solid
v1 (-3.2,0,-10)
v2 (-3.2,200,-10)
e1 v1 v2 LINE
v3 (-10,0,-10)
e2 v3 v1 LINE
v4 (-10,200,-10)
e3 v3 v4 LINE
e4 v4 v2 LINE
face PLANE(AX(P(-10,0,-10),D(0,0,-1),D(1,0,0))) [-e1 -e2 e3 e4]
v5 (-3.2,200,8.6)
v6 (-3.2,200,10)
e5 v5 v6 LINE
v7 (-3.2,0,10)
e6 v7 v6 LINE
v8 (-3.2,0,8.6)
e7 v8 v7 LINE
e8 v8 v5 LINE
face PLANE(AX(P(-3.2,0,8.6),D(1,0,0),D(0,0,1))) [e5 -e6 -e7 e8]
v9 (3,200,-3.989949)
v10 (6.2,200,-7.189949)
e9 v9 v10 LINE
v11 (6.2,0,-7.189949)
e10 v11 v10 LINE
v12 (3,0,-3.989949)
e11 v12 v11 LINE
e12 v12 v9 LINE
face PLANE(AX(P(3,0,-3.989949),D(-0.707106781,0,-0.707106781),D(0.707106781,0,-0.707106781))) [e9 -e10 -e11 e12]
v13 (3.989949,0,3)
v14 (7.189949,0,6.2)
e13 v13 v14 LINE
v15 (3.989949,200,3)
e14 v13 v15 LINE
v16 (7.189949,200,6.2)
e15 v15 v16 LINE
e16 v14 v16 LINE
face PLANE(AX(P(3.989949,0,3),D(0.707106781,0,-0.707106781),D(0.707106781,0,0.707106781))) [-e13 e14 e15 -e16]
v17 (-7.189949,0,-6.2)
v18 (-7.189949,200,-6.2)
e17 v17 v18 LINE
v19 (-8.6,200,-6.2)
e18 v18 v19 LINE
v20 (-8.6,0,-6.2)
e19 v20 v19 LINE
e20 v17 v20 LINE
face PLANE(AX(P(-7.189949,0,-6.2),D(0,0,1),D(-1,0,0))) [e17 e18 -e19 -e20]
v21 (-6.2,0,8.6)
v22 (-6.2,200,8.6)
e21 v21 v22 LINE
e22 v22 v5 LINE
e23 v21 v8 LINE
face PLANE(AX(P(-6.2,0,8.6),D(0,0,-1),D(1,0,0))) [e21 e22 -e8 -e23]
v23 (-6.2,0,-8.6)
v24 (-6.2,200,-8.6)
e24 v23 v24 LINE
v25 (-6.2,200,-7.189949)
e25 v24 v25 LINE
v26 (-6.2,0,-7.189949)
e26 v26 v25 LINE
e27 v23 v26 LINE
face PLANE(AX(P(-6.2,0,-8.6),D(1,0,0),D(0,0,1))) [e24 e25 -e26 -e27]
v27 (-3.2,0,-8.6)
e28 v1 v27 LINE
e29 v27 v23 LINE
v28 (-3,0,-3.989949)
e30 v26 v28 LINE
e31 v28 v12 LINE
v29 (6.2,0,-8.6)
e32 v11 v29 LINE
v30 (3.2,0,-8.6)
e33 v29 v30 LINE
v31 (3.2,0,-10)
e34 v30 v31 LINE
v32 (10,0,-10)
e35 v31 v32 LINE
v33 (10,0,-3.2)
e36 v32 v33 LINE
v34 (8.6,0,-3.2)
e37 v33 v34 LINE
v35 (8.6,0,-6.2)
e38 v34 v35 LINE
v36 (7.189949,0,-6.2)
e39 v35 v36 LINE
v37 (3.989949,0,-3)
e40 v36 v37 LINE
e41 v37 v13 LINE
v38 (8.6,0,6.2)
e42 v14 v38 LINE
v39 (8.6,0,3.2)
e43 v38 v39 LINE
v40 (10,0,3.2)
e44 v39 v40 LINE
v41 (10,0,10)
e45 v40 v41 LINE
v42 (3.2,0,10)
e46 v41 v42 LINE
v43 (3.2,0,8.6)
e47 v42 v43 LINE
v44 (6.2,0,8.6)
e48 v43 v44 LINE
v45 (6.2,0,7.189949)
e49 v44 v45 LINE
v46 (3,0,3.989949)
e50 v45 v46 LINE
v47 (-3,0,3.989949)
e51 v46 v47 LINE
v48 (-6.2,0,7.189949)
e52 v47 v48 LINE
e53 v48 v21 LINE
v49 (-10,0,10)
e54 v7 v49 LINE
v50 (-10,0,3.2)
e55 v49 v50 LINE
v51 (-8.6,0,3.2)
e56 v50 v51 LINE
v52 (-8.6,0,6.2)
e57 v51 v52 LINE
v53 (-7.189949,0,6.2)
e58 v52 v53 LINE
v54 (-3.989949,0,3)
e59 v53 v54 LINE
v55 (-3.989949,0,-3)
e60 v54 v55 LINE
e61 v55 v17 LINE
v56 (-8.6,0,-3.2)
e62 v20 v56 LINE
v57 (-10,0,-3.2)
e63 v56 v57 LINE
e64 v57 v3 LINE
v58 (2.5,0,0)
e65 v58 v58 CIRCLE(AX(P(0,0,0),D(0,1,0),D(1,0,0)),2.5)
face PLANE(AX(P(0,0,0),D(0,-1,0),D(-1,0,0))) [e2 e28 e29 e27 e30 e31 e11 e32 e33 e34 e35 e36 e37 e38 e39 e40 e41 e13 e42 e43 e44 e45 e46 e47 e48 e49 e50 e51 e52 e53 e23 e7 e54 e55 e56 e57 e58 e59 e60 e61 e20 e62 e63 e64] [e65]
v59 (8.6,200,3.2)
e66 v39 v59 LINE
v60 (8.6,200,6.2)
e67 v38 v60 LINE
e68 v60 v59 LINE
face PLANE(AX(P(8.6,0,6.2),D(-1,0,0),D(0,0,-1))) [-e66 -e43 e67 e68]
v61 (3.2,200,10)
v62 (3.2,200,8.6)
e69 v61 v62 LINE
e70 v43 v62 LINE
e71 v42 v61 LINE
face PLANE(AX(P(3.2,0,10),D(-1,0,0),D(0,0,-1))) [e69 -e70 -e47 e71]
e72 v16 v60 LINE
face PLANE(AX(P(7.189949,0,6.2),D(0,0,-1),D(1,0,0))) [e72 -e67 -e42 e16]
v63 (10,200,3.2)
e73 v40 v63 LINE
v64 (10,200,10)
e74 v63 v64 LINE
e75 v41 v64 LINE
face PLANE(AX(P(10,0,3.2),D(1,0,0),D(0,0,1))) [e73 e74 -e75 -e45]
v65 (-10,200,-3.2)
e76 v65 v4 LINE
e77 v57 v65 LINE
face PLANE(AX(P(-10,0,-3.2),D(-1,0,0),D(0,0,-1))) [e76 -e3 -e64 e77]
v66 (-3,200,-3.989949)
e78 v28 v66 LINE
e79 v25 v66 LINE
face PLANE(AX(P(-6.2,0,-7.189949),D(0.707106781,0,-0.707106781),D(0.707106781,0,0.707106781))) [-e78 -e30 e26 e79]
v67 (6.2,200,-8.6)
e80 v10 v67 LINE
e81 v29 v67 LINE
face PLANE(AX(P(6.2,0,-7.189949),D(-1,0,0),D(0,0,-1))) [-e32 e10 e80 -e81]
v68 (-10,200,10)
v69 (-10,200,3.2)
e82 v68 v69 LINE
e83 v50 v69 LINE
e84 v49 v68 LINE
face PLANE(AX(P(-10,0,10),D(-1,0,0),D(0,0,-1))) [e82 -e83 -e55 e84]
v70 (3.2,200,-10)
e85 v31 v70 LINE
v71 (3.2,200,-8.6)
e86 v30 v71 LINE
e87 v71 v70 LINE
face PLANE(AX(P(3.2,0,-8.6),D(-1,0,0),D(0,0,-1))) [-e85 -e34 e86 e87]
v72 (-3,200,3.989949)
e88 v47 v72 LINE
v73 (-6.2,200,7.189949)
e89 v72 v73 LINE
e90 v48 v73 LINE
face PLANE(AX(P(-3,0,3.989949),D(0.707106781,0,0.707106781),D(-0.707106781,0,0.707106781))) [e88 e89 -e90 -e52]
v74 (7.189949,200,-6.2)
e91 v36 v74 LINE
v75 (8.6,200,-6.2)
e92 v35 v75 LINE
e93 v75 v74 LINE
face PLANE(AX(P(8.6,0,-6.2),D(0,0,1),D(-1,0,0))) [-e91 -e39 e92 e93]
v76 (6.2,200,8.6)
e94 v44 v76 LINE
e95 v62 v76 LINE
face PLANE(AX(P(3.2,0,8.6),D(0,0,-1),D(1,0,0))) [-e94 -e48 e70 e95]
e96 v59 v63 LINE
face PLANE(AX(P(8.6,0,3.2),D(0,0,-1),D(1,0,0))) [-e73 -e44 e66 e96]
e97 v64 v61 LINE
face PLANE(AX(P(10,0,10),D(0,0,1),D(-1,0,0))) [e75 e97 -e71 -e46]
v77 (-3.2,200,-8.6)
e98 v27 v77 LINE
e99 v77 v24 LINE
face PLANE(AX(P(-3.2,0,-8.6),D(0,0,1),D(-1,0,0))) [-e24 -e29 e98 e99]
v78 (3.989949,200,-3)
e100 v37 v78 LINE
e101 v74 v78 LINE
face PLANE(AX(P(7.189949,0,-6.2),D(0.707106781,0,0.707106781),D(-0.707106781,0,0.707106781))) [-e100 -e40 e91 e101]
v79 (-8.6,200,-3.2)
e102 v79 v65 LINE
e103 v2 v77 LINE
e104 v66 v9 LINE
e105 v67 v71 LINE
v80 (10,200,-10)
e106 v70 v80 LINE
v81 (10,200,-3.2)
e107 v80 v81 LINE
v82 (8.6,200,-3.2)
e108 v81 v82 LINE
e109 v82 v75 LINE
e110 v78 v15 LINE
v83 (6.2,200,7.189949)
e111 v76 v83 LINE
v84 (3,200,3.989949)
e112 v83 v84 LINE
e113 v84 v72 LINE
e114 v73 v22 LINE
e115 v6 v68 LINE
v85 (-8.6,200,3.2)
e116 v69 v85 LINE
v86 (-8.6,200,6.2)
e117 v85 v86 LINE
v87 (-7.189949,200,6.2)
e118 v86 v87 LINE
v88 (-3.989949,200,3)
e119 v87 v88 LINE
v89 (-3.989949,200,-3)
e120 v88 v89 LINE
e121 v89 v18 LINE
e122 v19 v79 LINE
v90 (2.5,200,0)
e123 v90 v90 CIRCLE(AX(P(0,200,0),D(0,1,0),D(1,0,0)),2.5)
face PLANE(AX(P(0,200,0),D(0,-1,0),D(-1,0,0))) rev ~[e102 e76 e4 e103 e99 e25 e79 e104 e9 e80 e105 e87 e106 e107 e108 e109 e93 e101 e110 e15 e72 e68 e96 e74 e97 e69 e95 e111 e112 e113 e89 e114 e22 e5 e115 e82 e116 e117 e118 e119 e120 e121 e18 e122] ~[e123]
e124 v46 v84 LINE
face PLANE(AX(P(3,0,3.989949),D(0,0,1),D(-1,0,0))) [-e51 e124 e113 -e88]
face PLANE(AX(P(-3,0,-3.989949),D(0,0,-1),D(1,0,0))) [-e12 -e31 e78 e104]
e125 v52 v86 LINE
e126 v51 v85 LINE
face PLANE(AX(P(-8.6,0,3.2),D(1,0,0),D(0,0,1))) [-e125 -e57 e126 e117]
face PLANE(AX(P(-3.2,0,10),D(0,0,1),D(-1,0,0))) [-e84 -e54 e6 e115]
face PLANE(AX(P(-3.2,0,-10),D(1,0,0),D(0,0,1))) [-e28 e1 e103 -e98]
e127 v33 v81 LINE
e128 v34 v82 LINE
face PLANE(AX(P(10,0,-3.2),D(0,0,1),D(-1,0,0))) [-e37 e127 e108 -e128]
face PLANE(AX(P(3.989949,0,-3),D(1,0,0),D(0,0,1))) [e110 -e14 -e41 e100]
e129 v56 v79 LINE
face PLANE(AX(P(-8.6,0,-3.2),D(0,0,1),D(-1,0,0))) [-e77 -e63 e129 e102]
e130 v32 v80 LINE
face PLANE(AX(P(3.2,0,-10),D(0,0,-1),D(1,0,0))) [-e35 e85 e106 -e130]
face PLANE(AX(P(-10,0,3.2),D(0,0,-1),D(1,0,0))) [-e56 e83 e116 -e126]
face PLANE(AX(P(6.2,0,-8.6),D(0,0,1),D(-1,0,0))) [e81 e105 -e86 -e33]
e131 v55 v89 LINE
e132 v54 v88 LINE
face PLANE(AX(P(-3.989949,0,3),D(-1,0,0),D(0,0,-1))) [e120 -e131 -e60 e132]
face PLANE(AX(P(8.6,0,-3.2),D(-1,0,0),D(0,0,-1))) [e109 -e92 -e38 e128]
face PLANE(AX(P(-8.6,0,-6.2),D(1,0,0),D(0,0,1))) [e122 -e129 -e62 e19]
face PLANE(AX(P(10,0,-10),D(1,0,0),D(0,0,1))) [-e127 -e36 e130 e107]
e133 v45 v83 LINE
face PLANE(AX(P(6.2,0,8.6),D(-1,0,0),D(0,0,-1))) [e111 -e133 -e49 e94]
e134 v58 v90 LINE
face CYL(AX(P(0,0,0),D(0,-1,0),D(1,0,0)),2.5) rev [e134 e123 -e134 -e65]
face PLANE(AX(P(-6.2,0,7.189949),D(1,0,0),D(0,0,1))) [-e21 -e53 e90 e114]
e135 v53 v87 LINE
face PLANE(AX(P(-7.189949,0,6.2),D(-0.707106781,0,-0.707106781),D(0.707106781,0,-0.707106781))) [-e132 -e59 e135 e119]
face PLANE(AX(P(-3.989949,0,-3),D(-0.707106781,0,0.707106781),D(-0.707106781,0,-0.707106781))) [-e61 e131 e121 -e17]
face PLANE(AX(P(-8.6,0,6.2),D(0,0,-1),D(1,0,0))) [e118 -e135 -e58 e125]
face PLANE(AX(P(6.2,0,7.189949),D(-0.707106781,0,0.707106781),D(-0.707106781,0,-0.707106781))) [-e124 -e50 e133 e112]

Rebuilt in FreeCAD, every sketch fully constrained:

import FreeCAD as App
import Part
import Sketcher
from FreeCAD import Vector
Q = App.Units.Quantity


def add_polygon(sketch, points):
    """Adds a closed chain of lines whose ends are joined by coincident constraints."""
    first, n = sketch.GeometryCount, len(points)
    for a, b in zip(points, points[1:] + points[:1]):
        sketch.addGeometry(Part.LineSegment(App.Vector(*a, 0), App.Vector(*b, 0)), False)
    for i in range(n):
        sketch.addConstraint(Sketcher.Constraint("Coincident", first + i, 2, first + (i + 1) % n, 1))

doc = App.newDocument("Part")
body = doc.addObject("PartDesign::Body", "Body")

# Sketch on XZ plane
sketch1 = body.newObject("Sketcher::SketchObject", "Sketch")
sketch1.AttachmentSupport = (doc.getObject("XZ_Plane"), [""])
sketch1.MapMode = "FlatFace"
add_polygon(sketch1, [(-3.2, -8.6), (-3.2, -10), (-10, -10), (-10, -3.2), (-8.6, -3.2), (-8.6, -6.2), (-7.189949, -6.2), (-3.989949, -3), (-3.989949, 3), (-7.189949, 6.2), (-8.6, 6.2), (-8.6, 3.2), (-10, 3.2), (-10, 10), (-3.2, 10), (-3.2, 8.6), (-6.2, 8.6), (-6.2, 7.189949), (-3, 3.989949), (3, 3.989949), (6.2, 7.189949), (6.2, 8.6), (3.2, 8.6), (3.2, 10), (10, 10), (10, 3.2), (8.6, 3.2), (8.6, 6.2), (7.189949, 6.2), (3.989949, 3), (3.989949, -3), (7.189949, -6.2), (8.6, -6.2), (8.6, -3.2), (10, -3.2), (10, -10), (3.2, -10), (3.2, -8.6), (6.2, -8.6), (6.2, -7.189949), (3, -3.989949), (-3, -3.989949), (-6.2, -7.189949), (-6.2, -8.6)])  # lines 0-43
sketch1.addGeometry(Part.Circle(Vector(0, 0, 0), Vector(0, 0, 1), 2.5), False)  # 44
sketch1.addConstraint([
    Sketcher.Constraint("Vertical", 0),
    Sketcher.Constraint("Horizontal", 1),
    Sketcher.Constraint("Vertical", 2),
    Sketcher.Constraint("Horizontal", 3),
    Sketcher.Constraint("Vertical", 4),
    Sketcher.Constraint("Horizontal", 5),
    Sketcher.Constraint("Vertical", 7),
    Sketcher.Constraint("Horizontal", 9),
    Sketcher.Constraint("Vertical", 10),
    Sketcher.Constraint("Horizontal", 11),
    Sketcher.Constraint("Vertical", 12),
    Sketcher.Constraint("Horizontal", 13),
    Sketcher.Constraint("Vertical", 14),
    Sketcher.Constraint("Horizontal", 15),
    Sketcher.Constraint("Vertical", 16),
    Sketcher.Constraint("Horizontal", 18),
    Sketcher.Constraint("Vertical", 20),
    Sketcher.Constraint("Horizontal", 21),
    Sketcher.Constraint("Vertical", 22),
    Sketcher.Constraint("Horizontal", 23),
    Sketcher.Constraint("Vertical", 24),
    Sketcher.Constraint("Horizontal", 25),
    Sketcher.Constraint("Vertical", 26),
    Sketcher.Constraint("Horizontal", 27),
    Sketcher.Constraint("Vertical", 29),
    Sketcher.Constraint("Horizontal", 31),
    Sketcher.Constraint("Vertical", 32),
    Sketcher.Constraint("Horizontal", 33),
    Sketcher.Constraint("Vertical", 34),
    Sketcher.Constraint("Horizontal", 35),
    Sketcher.Constraint("Vertical", 36),
    Sketcher.Constraint("Horizontal", 37),
    Sketcher.Constraint("Vertical", 38),
    Sketcher.Constraint("Horizontal", 40),
    Sketcher.Constraint("Vertical", 42),
    Sketcher.Constraint("Horizontal", 43),
    Sketcher.Constraint("Coincident", 44, 3, -1, 1),
    Sketcher.Constraint("Symmetric", 0, 2, 22, 2, -1, 1),
    Sketcher.Constraint("Symmetric", 2, 2, 24, 2, -1, 1),
    Sketcher.Constraint("Symmetric", 4, 2, 26, 2, -1, 1),
    Sketcher.Constraint("Symmetric", 6, 2, 28, 2, -1, 1),
    Sketcher.Constraint("Symmetric", 8, 2, 30, 2, -1, 1),
    Sketcher.Constraint("Symmetric", 10, 2, 32, 2, -1, 1),
    Sketcher.Constraint("Symmetric", 12, 2, 34, 2, -1, 1),
    Sketcher.Constraint("Symmetric", 14, 2, 36, 2, -1, 1),
    Sketcher.Constraint("Symmetric", 16, 2, 38, 2, -1, 1),
    Sketcher.Constraint("Symmetric", 17, 2, 39, 2, -1, 1),
    Sketcher.Constraint("Symmetric", 19, 2, 41, 2, -1, 1),
    Sketcher.Constraint("Symmetric", 16, 2, 19, 2, -2),
    Sketcher.Constraint("Symmetric", 14, 2, 21, 2, -2),
    Sketcher.Constraint("Symmetric", 12, 2, 23, 2, -2),
    Sketcher.Constraint("Symmetric", 10, 2, 25, 2, -2),
    Sketcher.Constraint("Symmetric", 8, 2, 27, 2, -2),
    Sketcher.Constraint("Perpendicular", 6, 8),
    Sketcher.Constraint("Parallel", 8, 17),
    Sketcher.Constraint("Perpendicular", 17, 19),
    Sketcher.Constraint("Parallel", 19, 28),
    Sketcher.Constraint("Perpendicular", 28, 30),
    Sketcher.Constraint("Perpendicular", 39, 41),
    Sketcher.Constraint("Horizontal", 7, 2, 28, 2),
    Sketcher.Constraint("Horizontal", 37, 2, 42, 2),
    Sketcher.Constraint("Equal", 33, 0),
    Sketcher.Constraint("Equal", 35, 2),
    Sketcher.Constraint("Equal", 43, 4),
    Sketcher.Constraint("Equal", 40, 7),
    Sketcher.Constraint("Equal", 31, 16),
    Sketcher.Constraint("Equal", 8, 17),
    Sketcher.Constraint("Diameter", 44, Q("5 mm")),
    Sketcher.Constraint("DistanceX", 15, 2, 15, 1, Q("3 mm")),
    Sketcher.Constraint("DistanceX", 18, 1, 18, 2, Q("6 mm")),
    Sketcher.Constraint("DistanceX", 1, 2, 1, 1, Q("6.8 mm")),
    Sketcher.Constraint("DistanceX", 3, 1, 3, 2, Q("1.4 mm")),
    Sketcher.Constraint("DistanceY", 0, 2, -1, 1, Q("10 mm")),
    Sketcher.Constraint("DistanceX", 5, 1, 5, 2, Q("1.410051 mm")),
])
pad1 = body.newObject("PartDesign::Pad", "Pad")
pad1.Profile = sketch1
pad1.Length = 200
pad1.Reversed = True

doc.recompute()
